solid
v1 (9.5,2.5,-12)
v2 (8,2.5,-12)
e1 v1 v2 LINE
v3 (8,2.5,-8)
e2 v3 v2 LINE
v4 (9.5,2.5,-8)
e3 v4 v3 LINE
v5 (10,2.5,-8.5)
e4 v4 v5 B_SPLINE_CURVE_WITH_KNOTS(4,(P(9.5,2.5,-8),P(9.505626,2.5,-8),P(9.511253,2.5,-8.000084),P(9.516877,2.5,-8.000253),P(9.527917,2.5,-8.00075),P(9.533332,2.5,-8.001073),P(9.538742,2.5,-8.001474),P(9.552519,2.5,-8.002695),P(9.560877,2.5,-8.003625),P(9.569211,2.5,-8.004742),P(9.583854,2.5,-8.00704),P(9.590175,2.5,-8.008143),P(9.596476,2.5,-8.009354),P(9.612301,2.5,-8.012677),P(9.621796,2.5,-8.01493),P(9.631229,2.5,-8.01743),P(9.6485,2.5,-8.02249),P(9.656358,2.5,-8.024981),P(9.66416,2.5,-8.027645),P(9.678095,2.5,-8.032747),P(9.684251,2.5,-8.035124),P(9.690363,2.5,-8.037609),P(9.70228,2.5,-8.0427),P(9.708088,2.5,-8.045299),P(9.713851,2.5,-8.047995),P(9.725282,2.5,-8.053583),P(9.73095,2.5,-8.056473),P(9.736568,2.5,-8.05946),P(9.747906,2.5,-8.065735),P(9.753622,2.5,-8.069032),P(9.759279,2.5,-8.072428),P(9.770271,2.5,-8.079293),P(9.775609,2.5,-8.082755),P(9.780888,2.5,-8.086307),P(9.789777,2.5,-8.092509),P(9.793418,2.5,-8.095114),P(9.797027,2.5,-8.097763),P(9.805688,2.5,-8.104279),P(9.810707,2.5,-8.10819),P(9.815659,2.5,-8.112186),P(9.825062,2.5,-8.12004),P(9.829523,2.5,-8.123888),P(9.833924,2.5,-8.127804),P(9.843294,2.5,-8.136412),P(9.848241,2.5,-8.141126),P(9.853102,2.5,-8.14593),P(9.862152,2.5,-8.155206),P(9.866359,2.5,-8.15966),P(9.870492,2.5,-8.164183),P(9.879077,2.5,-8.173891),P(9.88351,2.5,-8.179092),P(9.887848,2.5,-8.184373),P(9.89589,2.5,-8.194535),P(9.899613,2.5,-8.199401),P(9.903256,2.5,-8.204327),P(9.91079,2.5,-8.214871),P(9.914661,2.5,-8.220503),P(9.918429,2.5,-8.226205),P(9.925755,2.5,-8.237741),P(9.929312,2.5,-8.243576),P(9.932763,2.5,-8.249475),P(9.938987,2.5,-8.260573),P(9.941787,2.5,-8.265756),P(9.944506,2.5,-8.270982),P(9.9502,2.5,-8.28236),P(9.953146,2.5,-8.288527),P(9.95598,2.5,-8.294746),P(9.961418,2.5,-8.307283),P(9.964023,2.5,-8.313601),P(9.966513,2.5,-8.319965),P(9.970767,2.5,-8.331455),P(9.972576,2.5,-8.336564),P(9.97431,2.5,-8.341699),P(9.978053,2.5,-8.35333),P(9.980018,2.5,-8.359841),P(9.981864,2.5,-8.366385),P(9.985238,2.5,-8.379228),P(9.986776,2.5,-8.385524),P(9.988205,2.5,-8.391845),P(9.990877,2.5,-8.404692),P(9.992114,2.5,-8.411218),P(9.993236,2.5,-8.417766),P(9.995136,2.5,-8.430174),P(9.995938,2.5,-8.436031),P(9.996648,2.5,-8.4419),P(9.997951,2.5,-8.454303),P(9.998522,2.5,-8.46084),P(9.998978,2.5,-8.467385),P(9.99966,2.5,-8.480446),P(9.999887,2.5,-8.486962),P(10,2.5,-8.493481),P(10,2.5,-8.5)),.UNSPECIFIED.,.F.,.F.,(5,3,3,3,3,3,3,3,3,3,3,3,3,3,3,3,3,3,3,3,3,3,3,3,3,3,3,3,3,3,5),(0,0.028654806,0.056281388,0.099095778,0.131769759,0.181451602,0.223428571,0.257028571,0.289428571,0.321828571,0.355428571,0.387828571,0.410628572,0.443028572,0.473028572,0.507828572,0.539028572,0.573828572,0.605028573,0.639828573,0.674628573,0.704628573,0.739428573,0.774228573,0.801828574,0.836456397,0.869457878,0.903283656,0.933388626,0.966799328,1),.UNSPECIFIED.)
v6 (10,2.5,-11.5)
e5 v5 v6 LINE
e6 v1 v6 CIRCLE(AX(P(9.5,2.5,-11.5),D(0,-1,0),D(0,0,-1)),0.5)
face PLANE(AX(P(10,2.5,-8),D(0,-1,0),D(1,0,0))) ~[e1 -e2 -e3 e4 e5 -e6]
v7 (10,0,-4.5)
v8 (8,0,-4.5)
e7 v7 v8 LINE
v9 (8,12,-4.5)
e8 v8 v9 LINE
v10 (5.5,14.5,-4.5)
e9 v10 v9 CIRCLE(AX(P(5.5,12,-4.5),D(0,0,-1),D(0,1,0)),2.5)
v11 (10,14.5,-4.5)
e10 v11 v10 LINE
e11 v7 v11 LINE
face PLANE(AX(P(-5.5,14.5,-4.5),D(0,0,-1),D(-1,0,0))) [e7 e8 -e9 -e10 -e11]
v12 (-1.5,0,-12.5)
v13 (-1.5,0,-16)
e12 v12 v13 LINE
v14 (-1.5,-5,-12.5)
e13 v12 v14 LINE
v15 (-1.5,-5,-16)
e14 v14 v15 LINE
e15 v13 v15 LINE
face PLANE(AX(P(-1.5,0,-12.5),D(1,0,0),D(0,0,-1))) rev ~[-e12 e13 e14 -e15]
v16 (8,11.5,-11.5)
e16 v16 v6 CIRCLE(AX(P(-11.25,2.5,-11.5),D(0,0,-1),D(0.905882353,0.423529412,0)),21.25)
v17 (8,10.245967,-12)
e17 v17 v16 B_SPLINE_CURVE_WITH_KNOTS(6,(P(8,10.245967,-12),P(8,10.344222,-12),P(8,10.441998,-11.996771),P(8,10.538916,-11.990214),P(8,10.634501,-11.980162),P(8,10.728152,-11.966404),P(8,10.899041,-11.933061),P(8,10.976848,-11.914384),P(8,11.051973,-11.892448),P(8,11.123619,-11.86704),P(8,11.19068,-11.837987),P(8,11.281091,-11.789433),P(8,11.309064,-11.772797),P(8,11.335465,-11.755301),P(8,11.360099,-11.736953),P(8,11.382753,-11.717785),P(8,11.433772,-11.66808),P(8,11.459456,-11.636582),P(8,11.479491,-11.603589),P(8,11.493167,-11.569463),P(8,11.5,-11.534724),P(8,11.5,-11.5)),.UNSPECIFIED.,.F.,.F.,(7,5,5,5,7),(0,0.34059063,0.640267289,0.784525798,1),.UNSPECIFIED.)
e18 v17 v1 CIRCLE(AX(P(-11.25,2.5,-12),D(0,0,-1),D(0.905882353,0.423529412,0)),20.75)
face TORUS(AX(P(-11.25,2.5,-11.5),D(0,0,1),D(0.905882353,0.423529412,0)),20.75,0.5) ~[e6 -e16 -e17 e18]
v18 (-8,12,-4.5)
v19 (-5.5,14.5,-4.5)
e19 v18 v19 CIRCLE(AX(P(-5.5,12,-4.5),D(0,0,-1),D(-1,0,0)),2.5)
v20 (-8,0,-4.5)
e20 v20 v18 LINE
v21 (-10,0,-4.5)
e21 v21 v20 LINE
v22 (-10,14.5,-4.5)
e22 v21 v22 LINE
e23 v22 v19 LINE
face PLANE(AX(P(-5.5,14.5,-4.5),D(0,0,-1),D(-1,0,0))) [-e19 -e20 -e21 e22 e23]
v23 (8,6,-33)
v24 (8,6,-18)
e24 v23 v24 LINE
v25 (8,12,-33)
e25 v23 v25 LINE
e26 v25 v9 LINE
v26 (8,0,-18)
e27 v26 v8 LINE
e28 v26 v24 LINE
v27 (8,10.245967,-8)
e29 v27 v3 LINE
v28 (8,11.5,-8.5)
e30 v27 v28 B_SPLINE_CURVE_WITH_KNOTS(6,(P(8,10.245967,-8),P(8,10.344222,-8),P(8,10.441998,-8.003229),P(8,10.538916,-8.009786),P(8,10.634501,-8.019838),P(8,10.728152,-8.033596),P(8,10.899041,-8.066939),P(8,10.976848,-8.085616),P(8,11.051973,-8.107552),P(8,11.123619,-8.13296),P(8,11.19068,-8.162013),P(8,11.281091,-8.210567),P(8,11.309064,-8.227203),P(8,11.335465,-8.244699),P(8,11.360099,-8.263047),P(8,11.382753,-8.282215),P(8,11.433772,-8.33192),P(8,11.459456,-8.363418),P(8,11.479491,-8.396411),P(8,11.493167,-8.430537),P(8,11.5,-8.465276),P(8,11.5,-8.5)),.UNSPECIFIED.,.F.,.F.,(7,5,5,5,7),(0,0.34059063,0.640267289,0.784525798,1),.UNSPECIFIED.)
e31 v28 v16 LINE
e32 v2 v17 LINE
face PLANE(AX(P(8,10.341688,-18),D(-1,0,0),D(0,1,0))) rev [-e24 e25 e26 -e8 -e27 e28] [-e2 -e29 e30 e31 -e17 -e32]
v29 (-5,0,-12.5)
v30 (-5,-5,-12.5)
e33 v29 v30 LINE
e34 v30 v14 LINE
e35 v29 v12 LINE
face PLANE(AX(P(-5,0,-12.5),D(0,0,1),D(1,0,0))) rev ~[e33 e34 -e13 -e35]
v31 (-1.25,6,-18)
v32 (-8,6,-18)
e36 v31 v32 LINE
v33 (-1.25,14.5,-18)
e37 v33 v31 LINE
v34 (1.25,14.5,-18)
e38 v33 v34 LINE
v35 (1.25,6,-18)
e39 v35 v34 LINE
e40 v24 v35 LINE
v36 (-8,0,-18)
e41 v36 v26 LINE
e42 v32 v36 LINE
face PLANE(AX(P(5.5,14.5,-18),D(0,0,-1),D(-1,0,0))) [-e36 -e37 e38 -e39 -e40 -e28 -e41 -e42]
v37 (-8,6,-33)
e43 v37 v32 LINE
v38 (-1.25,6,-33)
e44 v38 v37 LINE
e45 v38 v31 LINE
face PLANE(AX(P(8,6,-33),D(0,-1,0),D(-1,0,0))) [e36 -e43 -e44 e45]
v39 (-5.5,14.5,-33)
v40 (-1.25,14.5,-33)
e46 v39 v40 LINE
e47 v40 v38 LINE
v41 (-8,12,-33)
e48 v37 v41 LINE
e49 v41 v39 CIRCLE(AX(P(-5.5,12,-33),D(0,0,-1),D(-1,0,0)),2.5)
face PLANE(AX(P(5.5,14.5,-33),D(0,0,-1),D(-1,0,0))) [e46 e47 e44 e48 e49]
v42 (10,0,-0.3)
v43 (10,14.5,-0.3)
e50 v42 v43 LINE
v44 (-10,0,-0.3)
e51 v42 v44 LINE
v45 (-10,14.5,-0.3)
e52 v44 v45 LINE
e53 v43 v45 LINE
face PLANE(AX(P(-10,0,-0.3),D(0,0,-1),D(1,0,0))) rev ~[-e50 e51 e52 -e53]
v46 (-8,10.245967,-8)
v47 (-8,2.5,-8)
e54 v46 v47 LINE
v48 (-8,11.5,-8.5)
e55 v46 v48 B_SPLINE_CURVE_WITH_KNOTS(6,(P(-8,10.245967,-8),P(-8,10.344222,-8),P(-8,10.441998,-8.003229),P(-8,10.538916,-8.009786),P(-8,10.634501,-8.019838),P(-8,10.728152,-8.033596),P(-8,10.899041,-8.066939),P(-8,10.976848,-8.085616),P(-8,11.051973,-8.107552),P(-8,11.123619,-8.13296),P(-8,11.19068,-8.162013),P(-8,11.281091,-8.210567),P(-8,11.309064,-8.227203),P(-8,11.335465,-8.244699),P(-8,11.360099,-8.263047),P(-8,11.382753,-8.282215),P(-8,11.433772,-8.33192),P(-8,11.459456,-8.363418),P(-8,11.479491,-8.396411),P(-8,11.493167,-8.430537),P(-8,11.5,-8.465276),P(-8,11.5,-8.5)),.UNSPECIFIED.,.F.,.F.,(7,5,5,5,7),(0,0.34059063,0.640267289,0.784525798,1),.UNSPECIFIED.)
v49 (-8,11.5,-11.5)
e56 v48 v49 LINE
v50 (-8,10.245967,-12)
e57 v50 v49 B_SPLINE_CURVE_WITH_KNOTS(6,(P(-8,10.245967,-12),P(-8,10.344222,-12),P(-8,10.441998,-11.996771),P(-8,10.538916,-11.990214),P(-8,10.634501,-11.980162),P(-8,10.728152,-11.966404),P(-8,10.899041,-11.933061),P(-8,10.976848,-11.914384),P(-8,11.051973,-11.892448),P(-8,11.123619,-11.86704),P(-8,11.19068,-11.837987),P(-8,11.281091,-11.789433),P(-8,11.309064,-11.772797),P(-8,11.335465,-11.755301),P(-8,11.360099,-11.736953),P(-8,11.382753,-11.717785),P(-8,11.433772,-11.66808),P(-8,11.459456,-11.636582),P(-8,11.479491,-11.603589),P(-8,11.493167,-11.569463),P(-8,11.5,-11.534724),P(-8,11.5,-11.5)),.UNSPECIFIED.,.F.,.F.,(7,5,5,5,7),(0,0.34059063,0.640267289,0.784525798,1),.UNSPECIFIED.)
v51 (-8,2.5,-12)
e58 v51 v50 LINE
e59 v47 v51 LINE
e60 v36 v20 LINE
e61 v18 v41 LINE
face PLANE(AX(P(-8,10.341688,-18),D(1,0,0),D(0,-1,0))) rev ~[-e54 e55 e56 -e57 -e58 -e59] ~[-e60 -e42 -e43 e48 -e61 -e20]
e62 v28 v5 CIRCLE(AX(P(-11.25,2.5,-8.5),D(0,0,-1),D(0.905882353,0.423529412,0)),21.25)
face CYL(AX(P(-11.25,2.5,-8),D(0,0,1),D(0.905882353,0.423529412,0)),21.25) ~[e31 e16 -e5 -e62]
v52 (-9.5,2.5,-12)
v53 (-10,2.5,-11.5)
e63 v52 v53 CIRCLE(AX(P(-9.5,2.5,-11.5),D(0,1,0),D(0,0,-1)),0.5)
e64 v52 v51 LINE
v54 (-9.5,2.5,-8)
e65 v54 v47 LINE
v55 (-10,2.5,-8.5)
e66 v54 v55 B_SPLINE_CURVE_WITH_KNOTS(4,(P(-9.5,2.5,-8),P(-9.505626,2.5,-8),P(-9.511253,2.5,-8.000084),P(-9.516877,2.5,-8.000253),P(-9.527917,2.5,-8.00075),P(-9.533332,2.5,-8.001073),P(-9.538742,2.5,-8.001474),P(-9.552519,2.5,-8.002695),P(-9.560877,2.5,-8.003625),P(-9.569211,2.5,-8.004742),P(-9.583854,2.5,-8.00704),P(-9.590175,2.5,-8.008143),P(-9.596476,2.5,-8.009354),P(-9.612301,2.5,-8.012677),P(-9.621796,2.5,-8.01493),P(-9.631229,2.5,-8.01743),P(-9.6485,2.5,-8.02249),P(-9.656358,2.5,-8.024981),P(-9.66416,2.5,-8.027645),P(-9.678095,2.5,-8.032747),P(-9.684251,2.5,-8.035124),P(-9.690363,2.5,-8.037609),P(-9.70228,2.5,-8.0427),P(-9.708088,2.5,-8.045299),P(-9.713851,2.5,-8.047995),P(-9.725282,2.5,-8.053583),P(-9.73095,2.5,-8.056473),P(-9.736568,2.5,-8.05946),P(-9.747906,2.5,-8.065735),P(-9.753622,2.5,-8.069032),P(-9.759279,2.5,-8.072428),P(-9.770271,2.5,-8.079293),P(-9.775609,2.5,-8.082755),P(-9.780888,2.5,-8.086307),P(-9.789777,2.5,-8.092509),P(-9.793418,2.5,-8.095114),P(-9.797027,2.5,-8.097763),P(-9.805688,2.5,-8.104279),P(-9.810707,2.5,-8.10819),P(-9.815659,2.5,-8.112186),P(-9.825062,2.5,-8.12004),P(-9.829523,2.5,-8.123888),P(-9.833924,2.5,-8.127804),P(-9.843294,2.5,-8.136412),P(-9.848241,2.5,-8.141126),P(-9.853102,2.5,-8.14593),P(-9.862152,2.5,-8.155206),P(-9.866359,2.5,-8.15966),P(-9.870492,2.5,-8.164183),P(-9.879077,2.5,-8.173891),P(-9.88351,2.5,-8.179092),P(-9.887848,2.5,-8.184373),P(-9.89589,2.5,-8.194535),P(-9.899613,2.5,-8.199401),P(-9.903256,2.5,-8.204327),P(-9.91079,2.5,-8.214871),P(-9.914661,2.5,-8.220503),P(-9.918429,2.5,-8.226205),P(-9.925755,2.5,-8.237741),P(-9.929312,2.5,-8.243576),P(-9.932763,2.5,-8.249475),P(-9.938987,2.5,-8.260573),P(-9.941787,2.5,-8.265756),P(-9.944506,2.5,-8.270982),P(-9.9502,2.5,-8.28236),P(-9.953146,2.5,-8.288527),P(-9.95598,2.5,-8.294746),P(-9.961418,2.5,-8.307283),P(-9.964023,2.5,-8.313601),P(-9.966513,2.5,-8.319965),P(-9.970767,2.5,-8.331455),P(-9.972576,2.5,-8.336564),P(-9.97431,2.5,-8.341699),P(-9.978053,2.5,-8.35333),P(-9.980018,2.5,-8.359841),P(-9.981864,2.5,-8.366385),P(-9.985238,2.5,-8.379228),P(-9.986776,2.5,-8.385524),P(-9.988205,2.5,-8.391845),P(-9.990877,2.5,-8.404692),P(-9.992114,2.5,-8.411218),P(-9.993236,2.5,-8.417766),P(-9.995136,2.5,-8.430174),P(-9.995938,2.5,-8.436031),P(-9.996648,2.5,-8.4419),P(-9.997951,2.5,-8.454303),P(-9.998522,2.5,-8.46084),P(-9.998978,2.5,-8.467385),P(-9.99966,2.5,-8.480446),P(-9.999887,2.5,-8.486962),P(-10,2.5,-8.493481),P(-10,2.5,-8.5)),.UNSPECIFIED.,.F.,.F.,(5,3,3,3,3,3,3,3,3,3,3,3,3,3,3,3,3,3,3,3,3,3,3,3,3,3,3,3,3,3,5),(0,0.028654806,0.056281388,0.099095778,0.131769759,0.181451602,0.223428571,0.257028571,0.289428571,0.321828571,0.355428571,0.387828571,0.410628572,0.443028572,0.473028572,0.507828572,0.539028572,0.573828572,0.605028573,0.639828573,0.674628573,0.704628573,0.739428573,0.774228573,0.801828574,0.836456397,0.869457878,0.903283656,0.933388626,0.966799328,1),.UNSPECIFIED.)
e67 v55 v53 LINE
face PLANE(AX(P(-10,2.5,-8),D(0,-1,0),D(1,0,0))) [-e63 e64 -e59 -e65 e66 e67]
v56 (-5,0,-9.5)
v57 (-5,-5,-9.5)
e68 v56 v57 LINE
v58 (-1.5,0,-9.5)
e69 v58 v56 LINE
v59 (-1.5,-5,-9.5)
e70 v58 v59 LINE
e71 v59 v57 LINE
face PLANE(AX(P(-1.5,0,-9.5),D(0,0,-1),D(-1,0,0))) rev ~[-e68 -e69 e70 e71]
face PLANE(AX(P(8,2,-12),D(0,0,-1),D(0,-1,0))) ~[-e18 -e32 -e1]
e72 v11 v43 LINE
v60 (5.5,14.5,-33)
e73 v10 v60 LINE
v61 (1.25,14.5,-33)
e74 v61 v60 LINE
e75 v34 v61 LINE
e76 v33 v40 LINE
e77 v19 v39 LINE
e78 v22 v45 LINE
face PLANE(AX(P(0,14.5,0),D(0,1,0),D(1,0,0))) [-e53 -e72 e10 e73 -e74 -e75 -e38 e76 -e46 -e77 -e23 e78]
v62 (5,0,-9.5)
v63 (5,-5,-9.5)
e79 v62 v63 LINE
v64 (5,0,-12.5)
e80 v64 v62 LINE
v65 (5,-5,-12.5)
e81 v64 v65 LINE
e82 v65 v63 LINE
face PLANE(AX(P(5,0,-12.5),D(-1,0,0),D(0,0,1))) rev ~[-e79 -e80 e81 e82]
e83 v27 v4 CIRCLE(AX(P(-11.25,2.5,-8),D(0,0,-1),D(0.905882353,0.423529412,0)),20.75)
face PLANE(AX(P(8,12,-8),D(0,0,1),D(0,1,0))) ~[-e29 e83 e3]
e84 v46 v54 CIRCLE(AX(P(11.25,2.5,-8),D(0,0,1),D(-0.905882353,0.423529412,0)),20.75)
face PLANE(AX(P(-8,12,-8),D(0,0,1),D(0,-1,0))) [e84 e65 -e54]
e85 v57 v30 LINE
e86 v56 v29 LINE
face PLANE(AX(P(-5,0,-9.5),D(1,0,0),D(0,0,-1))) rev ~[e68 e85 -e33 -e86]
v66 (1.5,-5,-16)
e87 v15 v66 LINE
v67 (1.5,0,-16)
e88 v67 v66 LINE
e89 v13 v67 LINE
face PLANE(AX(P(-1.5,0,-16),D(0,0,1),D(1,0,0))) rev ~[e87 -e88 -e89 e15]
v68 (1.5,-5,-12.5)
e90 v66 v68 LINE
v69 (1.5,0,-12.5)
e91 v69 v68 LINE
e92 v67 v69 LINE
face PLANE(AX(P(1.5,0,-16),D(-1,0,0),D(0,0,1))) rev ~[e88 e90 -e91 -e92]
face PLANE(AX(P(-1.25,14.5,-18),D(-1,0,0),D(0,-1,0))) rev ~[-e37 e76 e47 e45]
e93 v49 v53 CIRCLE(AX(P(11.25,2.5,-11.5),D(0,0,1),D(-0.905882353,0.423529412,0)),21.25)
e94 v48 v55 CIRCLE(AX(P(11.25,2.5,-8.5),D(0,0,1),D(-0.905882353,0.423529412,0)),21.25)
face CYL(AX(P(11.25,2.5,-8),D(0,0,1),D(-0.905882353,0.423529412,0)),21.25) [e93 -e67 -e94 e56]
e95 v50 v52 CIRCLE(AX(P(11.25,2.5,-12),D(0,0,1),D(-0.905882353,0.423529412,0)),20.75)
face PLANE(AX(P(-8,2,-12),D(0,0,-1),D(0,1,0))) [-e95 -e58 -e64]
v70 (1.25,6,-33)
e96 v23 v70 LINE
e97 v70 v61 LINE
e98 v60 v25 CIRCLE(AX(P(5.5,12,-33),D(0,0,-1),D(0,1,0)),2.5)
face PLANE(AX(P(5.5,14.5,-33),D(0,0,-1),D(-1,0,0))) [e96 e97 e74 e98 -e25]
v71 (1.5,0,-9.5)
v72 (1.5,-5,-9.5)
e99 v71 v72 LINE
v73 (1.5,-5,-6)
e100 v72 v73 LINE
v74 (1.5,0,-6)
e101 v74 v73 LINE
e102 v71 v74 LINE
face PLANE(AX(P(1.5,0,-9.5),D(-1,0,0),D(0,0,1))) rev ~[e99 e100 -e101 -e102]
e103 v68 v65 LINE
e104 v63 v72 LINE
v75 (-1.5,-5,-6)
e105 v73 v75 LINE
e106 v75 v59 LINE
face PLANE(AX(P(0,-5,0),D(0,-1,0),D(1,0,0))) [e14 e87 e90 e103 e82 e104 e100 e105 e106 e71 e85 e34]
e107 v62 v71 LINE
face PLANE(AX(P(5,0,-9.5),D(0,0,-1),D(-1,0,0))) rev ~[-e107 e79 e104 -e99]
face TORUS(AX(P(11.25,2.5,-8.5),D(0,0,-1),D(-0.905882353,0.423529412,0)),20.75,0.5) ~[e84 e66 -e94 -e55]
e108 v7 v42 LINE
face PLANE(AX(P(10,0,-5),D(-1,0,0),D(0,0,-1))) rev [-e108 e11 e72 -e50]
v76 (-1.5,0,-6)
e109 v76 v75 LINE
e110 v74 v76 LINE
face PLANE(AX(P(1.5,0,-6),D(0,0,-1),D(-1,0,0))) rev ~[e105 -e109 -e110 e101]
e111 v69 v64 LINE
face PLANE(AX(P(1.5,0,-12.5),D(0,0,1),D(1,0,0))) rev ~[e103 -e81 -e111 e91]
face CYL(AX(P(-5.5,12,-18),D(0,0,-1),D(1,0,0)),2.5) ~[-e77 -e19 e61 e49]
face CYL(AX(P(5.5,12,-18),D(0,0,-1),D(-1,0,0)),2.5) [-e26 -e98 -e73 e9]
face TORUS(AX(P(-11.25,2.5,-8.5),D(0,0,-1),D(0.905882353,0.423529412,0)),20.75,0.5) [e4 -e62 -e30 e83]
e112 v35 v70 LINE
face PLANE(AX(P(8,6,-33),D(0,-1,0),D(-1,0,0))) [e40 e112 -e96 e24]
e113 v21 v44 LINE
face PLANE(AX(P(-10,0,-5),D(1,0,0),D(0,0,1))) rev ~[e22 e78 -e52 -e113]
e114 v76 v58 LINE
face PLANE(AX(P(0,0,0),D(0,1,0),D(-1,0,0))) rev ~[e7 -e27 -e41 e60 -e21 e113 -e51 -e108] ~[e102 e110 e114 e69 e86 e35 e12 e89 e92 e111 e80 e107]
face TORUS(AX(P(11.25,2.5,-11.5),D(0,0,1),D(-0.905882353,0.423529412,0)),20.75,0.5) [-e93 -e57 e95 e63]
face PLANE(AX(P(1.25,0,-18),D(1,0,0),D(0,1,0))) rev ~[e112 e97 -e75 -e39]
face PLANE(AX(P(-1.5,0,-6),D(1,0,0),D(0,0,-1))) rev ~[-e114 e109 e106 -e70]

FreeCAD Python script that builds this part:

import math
import FreeCAD as App
import Part
import Sketcher
from FreeCAD import Vector
Q = App.Units.Quantity


def edges_at(feature, points):
    """Names of the edges that pass closest to the given points."""
    edges = feature.Shape.Edges
    near = lambda p: min(range(len(edges)), key=lambda i: edges[i].distToShape(Part.Vertex(*p))[0])
    return sorted({f"Edge{near(p) + 1}" for p in points})


def add_polygon(sketch, points):
    """Adds a closed chain of lines whose ends are joined by coincident constraints."""
    first, n = sketch.GeometryCount, len(points)
    for a, b in zip(points, points[1:] + points[:1]):
        sketch.addGeometry(Part.LineSegment(App.Vector(*a, 0), App.Vector(*b, 0)), False)
    for i in range(n):
        sketch.addConstraint(Sketcher.Constraint("Coincident", first + i, 2, first + (i + 1) % n, 1))

doc = App.newDocument("Part")
params = doc.addObject("Spreadsheet::Sheet", "Params")
for row, (alias, value) in enumerate([
    ("sketch1_width", "10 mm"),
    ("sketch1_height", "13 mm"),
    ("sketch1_width2", "1.5 mm"),
    ("pad1_length", "15 mm"),
    ("sketch2_width", "0.5 mm"),
    ("sketch2_radius", "2.5 mm"),
    ("sketch2_height", "12 mm"),
    ("sketch2_width2", "5.5 mm"),
    ("pocket1_length", "13 mm"),
    ("sketch3_width", "10 mm"),
    ("sketch3_height", "4.7 mm"),
    ("pocket2_length", "0.5 mm"),
    ("sketch4_width", "10 mm"),
    ("sketch4_height", "4 mm"),
    ("pad2_length", "2 mm"),
    ("sketch5_height", "0.5 mm"),
    ("sketch5_width", "2 mm"),
    ("sketch5_radius", "21.25 mm"),
    ("pocket3_length", "4 mm"),
    ("fillet_radius", "0.5 mm"),
    ("sketch6_radius", "2.5 mm"),
    ("sketch6_width", "2 mm"),
    ("sketch6_height", "12 mm"),
    ("pocket4_length", "0.5 mm"),
    ("sketch7_height", "14.7 mm"),
    ("sketch8_width", "3 mm"),
    ("pad3_length", "5 mm"),
    ("sketch9_height", "4.7 mm"),
    ("sketch10_radius", "2.5 mm"),
    ("sketch10_height", "12 mm"),
    ("pad4_length", "15 mm"),
    ("sketch11_height", "6 mm"),
    ("sketch11_width", "16 mm"),
    ("pocket7_length", "15 mm"),
], start=1):
    params.set(f"A{row}", alias)
    params.set(f"B{row}", "=" + value)
    params.setAlias(f"B{row}", alias)

body = doc.addObject("PartDesign::Body", "Body")

# Sketch on XZ plane
sketch1 = doc.addObject("Sketcher::SketchObject", "Sketch")
body.addObject(sketch1)
sketch1.AttachmentSupport = (doc.XZ_Plane, [""])
sketch1.MapMode = "FlatFace"
add_polygon(sketch1, [(-10, -5), (-10, -0.3), (0, -0.3), (0, -22.7), (-10, -22.7), (-10, -18), (-8.5, -18), (-8.5, -5)])  # lines 0-7
sketch1.addConstraint([
    Sketcher.Constraint("Vertical", 0),
    Sketcher.Constraint("Horizontal", 1),
    Sketcher.Constraint("Vertical", 2),
    Sketcher.Constraint("Horizontal", 3),
    Sketcher.Constraint("Vertical", 4),
    Sketcher.Constraint("Horizontal", 5),
    Sketcher.Constraint("Vertical", 6),
    Sketcher.Constraint("Horizontal", 7),
    Sketcher.Constraint("PointOnObject", 1, 2, -2),
    Sketcher.Constraint("Vertical", 0, 2, 3, 2),
    Sketcher.Constraint("Equal", 0, 4),
    Sketcher.Constraint("DistanceX", 1, 1, 1, 2, Q("10 mm")),
    Sketcher.Constraint("DistanceY", 6, 1, 6, 2, Q("13 mm")),
    Sketcher.Constraint("DistanceX", 5, 1, 5, 2, Q("1.5 mm")),
    Sketcher.Constraint("DistanceY", 6, 2, -1, 1, Q("5 mm")),
    Sketcher.Constraint("DistanceY", 0, 2, -1, 1, Q("0.3 mm")),
])
sketch1.setExpression("Constraints[19]", "Params.sketch1_width")
sketch1.setExpression("Constraints[20]", "Params.sketch1_height")
sketch1.setExpression("Constraints[21]", "Params.sketch1_width2")
pad1 = doc.addObject("PartDesign::Pad", "Pad")
body.addObject(pad1)
pad1.Profile = sketch1
pad1.setExpression("Length", "Params.pad1_length")
pad1.Reversed = True

# Sketch on XY plane
sketch2 = doc.addObject("Sketcher::SketchObject", "Sketch001")
body.addObject(sketch2)
sketch2.AttachmentSupport = (doc.XY_Plane, [""])
sketch2.MapMode = "FlatFace"
sketch2.AttachmentOffset = App.Placement(Vector(0, 0, -18), App.Rotation())
sketch2.addGeometry([
    Part.LineSegment(Vector(-8.5, 0, 0), Vector(-8, 0, 0)),  # 0
    Part.LineSegment(Vector(-8, 0, 0), Vector(-8, 12, 0)),  # 1
    Part.ArcOfCircle(Part.Circle(Vector(-5.5, 12, 0), Vector(0, 0, 1), 2.5), math.radians(90), math.radians(180)),  # 2
    Part.LineSegment(Vector(-5.5, 14.5, 0), Vector(0, 14.5, 0)),  # 3
    Part.LineSegment(Vector(0, 14.5, 0), Vector(0, 15, 0)),  # 4
    Part.LineSegment(Vector(0, 15, 0), Vector(-8.5, 15, 0)),  # 5
    Part.LineSegment(Vector(-8.5, 15, 0), Vector(-8.5, 0, 0)),  # 6
], False)
sketch2.addConstraint([
    Sketcher.Constraint("Coincident", 0, 2, 1, 1),
    Sketcher.Constraint("Tangent", 1, 2, 2, 2),
    Sketcher.Constraint("Tangent", 2, 1, 3, 1),
    Sketcher.Constraint("Coincident", 3, 2, 4, 1),
    Sketcher.Constraint("Coincident", 4, 2, 5, 1),
    Sketcher.Constraint("Coincident", 5, 2, 6, 1),
    Sketcher.Constraint("Coincident", 6, 2, 0, 1),
    Sketcher.Constraint("Horizontal", 0),
    Sketcher.Constraint("Vertical", 1),
    Sketcher.Constraint("Horizontal", 3),
    Sketcher.Constraint("Vertical", 4),
    Sketcher.Constraint("Horizontal", 5),
    Sketcher.Constraint("Vertical", 6),
    Sketcher.Constraint("PointOnObject", 0, 2, -1),
    Sketcher.Constraint("PointOnObject", 3, 2, -2),
    Sketcher.Constraint("Equal", 0, 4),
    Sketcher.Constraint("DistanceX", 0, 1, 0, 2, Q("0.5 mm")),
    Sketcher.Constraint("Radius", 2, Q("2.5 mm")),
    Sketcher.Constraint("DistanceY", 1, 1, 1, 2, Q("12 mm")),
    Sketcher.Constraint("DistanceX", 3, 1, 3, 2, Q("5.5 mm")),
])
sketch2.setExpression("Constraints[16]", "Params.sketch2_width")
sketch2.setExpression("Constraints[17]", "Params.sketch2_radius")
sketch2.setExpression("Constraints[18]", "Params.sketch2_height")
sketch2.setExpression("Constraints[19]", "Params.sketch2_width2")
pocket1 = doc.addObject("PartDesign::Pocket", "Pocket")
body.addObject(pocket1)
pocket1.Profile = sketch2
pocket1.setExpression("Length", "Params.pocket1_length")
pocket1.Reversed = True

# Sketch on XZ plane
sketch3 = doc.addObject("Sketcher::SketchObject", "Sketch002")
body.addObject(sketch3)
sketch3.AttachmentSupport = (doc.XZ_Plane, [""])
sketch3.MapMode = "FlatFace"
sketch3.AttachmentOffset = App.Placement(Vector(0, 0, -15), App.Rotation())
add_polygon(sketch3, [(0, -0.3), (0, -5), (-10, -5), (-10, -0.3)])  # lines 0-3
sketch3.addConstraint([
    Sketcher.Constraint("Vertical", 0),
    Sketcher.Constraint("Horizontal", 1),
    Sketcher.Constraint("Vertical", 2),
    Sketcher.Constraint("Horizontal", 3),
    Sketcher.Constraint("PointOnObject", 0, 2, -2),
    Sketcher.Constraint("DistanceX", 1, 2, 1, 1, Q("10 mm")),
    Sketcher.Constraint("DistanceY", 0, 2, 0, 1, Q("4.7 mm")),
    Sketcher.Constraint("DistanceY", 0, 2, -1, 1, Q("5 mm")),
])
sketch3.setExpression("Constraints[9]", "Params.sketch3_width")
sketch3.setExpression("Constraints[10]", "Params.sketch3_height")
pocket2 = doc.addObject("PartDesign::Pocket", "Pocket001")
body.addObject(pocket2)
pocket2.Profile = sketch3
pocket2.setExpression("Length", "Params.pocket2_length")
pocket2.Reversed = True

# Sketch on YZ plane
sketch4 = doc.addObject("Sketcher::SketchObject", "Sketch003")
body.addObject(sketch4)
sketch4.AttachmentSupport = (doc.YZ_Plane, [""])
sketch4.MapMode = "FlatFace"
sketch4.AttachmentOffset = App.Placement(Vector(0, 0, -8), App.Rotation())
add_polygon(sketch4, [(12, -8), (12, -12), (2, -12), (2, -8)])  # lines 0-3
sketch4.addConstraint([
    Sketcher.Constraint("Vertical", 0),
    Sketcher.Constraint("Horizontal", 1),
    Sketcher.Constraint("Vertical", 2),
    Sketcher.Constraint("Horizontal", 3),
    Sketcher.Constraint("DistanceX", 1, 2, 1, 1, Q("10 mm")),
    Sketcher.Constraint("DistanceY", 0, 2, 0, 1, Q("4 mm")),
    Sketcher.Constraint("DistanceX", -1, 1, 1, 2, Q("2 mm")),
    Sketcher.Constraint("DistanceY", 0, 2, -1, 1, Q("12 mm")),
])
sketch4.setExpression("Constraints[8]", "Params.sketch4_width")
sketch4.setExpression("Constraints[9]", "Params.sketch4_height")
pad2 = doc.addObject("PartDesign::Pad", "Pad001")
body.addObject(pad2)
pad2.Profile = sketch4
pad2.setExpression("Length", "Params.pad2_length")
pad2.Reversed = True

# Sketch on XY plane
sketch5 = doc.addObject("Sketcher::SketchObject", "Sketch004")
body.addObject(sketch5)
sketch5.AttachmentSupport = (doc.XY_Plane, [""])
sketch5.MapMode = "FlatFace"
sketch5.AttachmentOffset = App.Placement(Vector(0, 0, -8), App.Rotation())
sketch5.addGeometry(Part.LineSegment(Vector(-8, 11.5, 0), Vector(-8, 12, 0)), False)  # 0
sketch5.addGeometry(Part.LineSegment(Vector(-8, 12, 0), Vector(-10, 12, 0)), False)  # 1
sketch5.addGeometry(Part.LineSegment(Vector(-10, 12, 0), Vector(-10, 2.5, 0)), False)  # 2
sketch5.addGeometry(Part.ArcOfCircle(Part.Circle(Vector(11.25, 2.5, 0), Vector(0, 0, 1), 21.25), math.radians(154.942385), math.radians(180)), False)  # 3
add_polygon(sketch5, [(-8, 2), (-8, 2.5), (-10, 2.5), (-10, 2)])  # lines 4-7
sketch5.addConstraint([
    Sketcher.Constraint("Coincident", 0, 2, 1, 1),
    Sketcher.Constraint("Coincident", 1, 2, 2, 1),
    Sketcher.Constraint("Tangent", 2, 2, 3, 2),
    Sketcher.Constraint("Coincident", 3, 1, 0, 1),
    Sketcher.Constraint("Vertical", 0),
    Sketcher.Constraint("Horizontal", 1),
    Sketcher.Constraint("Vertical", 2),
    Sketcher.Constraint("Vertical", 4),
    Sketcher.Constraint("Horizontal", 5),
    Sketcher.Constraint("Vertical", 6),
    Sketcher.Constraint("Horizontal", 7),
    Sketcher.Constraint("Coincident", 5, 2, 2, 2),
    Sketcher.Constraint("Vertical", 3, 1, 4, 2),
    Sketcher.Constraint("Equal", 0, 4),
    Sketcher.Constraint("DistanceY", 0, 1, 0, 2, Q("0.5 mm")),
    Sketcher.Constraint("DistanceX", 1, 2, 1, 1, Q("2 mm")),
    Sketcher.Constraint("Radius", 3, Q("21.25 mm")),
    Sketcher.Constraint("DistanceX", 0, 2, -1, 1, Q("8 mm")),
    Sketcher.Constraint("DistanceY", -1, 1, 0, 2, Q("12 mm")),
])
sketch5.setExpression("Constraints[18]", "Params.sketch5_height")
sketch5.setExpression("Constraints[19]", "Params.sketch5_width")
sketch5.setExpression("Constraints[20]", "Params.sketch5_radius")
pocket3 = doc.addObject("PartDesign::Pocket", "Pocket002")
body.addObject(pocket3)
pocket3.Profile = sketch5
pocket3.setExpression("Length", "Params.pocket3_length")
doc.recompute()

fillet = doc.addObject("PartDesign::Fillet", "Fillet")
body.addObject(fillet)
fillet.Base = (pocket3, edges_at(pocket3, [(-9.494, 7.11, -12), (-9.494, 7.11, -8)]))
fillet.setExpression("Radius", "Params.fillet_radius")
doc.recompute()

mirrored = doc.addObject("PartDesign::Mirrored", "Mirrored")
body.addObject(mirrored)
mirrored.TransformMode = "Transform body"
mirrored.MirrorPlane = (doc.YZ_Plane, [""])
body.Tip = mirrored

# Sketch on XY plane
sketch6 = doc.addObject("Sketcher::SketchObject", "Sketch005")
body.addObject(sketch6)
sketch6.AttachmentSupport = (doc.XY_Plane, [""])
sketch6.MapMode = "FlatFace"
sketch6.AttachmentOffset = App.Placement(Vector(0, 0, -5), App.Rotation())
sketch6.addGeometry([
    Part.LineSegment(Vector(-10, 0, 0), Vector(-10, 14.5, 0)),  # 0
    Part.LineSegment(Vector(-10, 14.5, 0), Vector(-5.5, 14.5, 0)),  # 1
    Part.ArcOfCircle(Part.Circle(Vector(-5.5, 12, 0), Vector(0, 0, 1), 2.5), math.radians(90), math.radians(180)),  # 2
    Part.LineSegment(Vector(-8, 12, 0), Vector(-8, 0, 0)),  # 3
    Part.LineSegment(Vector(-8, 0, 0), Vector(-10, 0, 0)),  # 4
    Part.LineSegment(Vector(5.5, 14.5, 0), Vector(10, 14.5, 0)),  # 5
    Part.LineSegment(Vector(10, 14.5, 0), Vector(10, 0, 0)),  # 6
    Part.LineSegment(Vector(10, 0, 0), Vector(8, 0, 0)),  # 7
    Part.LineSegment(Vector(8, 0, 0), Vector(8, 12, 0)),  # 8
    Part.ArcOfCircle(Part.Circle(Vector(5.5, 12, 0), Vector(0, 0, 1), 2.5), math.radians(0), math.radians(90)),  # 9
], False)
sketch6.addConstraint([
    Sketcher.Constraint("Coincident", 0, 2, 1, 1),
    Sketcher.Constraint("Tangent", 1, 2, 2, 1),
    Sketcher.Constraint("Tangent", 2, 2, 3, 1),
    Sketcher.Constraint("Coincident", 3, 2, 4, 1),
    Sketcher.Constraint("Coincident", 4, 2, 0, 1),
    Sketcher.Constraint("Coincident", 5, 2, 6, 1),
    Sketcher.Constraint("Coincident", 6, 2, 7, 1),
    Sketcher.Constraint("Coincident", 7, 2, 8, 1),
    Sketcher.Constraint("Tangent", 8, 2, 9, 1),
    Sketcher.Constraint("Tangent", 9, 2, 5, 1),
    Sketcher.Constraint("Vertical", 0),
    Sketcher.Constraint("Horizontal", 1),
    Sketcher.Constraint("Vertical", 3),
    Sketcher.Constraint("Horizontal", 4),
    Sketcher.Constraint("Horizontal", 5),
    Sketcher.Constraint("Vertical", 6),
    Sketcher.Constraint("Horizontal", 7),
    Sketcher.Constraint("Vertical", 8),
    Sketcher.Constraint("Equal", 2, 9),
    Sketcher.Constraint("Symmetric", 4, 2, 6, 2, -1, 1),
    Sketcher.Constraint("Symmetric", 2, 3, 9, 3, -2),
    Sketcher.Constraint("PointOnObject", 3, 2, -1),
    Sketcher.Constraint("Radius", 2, Q("2.5 mm")),
    Sketcher.Constraint("DistanceX", 4, 2, 4, 1, Q("2 mm")),
    Sketcher.Constraint("DistanceY", 3, 2, 3, 1, Q("12 mm")),
    Sketcher.Constraint("DistanceX", 0, 2, -1, 1, Q("10 mm")),
])
sketch6.setExpression("Constraints[22]", "Params.sketch6_radius")
sketch6.setExpression("Constraints[23]", "Params.sketch6_width")
sketch6.setExpression("Constraints[24]", "Params.sketch6_height")
pocket4 = doc.addObject("PartDesign::Pocket", "Pocket003")
body.addObject(pocket4)
pocket4.Profile = sketch6
pocket4.setExpression("Length", "Params.pocket4_length")
pocket4.Reversed = True

# Sketch on XZ plane
sketch7 = doc.addObject("Sketcher::SketchObject", "Sketch006")
body.addObject(sketch7)
sketch7.AttachmentSupport = (doc.XZ_Plane, [""])
sketch7.MapMode = "FlatFace"
sketch7.AttachmentOffset = App.Placement(Vector(0, 0, -14.5), App.Rotation())
sketch7.addGeometry([
    Part.ArcOfCircle(Part.Circle(Vector(147.8276, -0.3, 0), Vector(0, 0, 1), 157.827629), math.radians(-173.560865), math.radians(-168.153682)),
    Part.LineSegment(Vector(-6.638534, -32.7, 0), Vector(-10, -32.7, 0)),
    Part.LineSegment(Vector(-10, -32.7, 0), Vector(-10, -18, 0)),
    Part.LineSegment(Vector(-10, -18, 0), Vector(-9.004344, -18, 0)),
], False)
sketch7.addConstraint([
    Sketcher.Constraint("Coincident", 0, 2, 1, 1),
    Sketcher.Constraint("Coincident", 1, 2, 2, 1),
    Sketcher.Constraint("Coincident", 2, 2, 3, 1),
    Sketcher.Constraint("Coincident", 3, 2, 0, 1),
    Sketcher.Constraint("Horizontal", 1),
    Sketcher.Constraint("Vertical", 2),
    Sketcher.Constraint("Horizontal", 3),
    Sketcher.Constraint("DistanceY", 2, 1, 2, 2, Q("14.7 mm")),
    Sketcher.Constraint("DistanceX", 1, 2, -1, 1, Q("10 mm")),
    Sketcher.Constraint("DistanceY", 2, 2, -1, 1, Q("18 mm")),
    Sketcher.Constraint("DistanceY", 0, 3, -1, 1, Q("0.3 mm")),
    Sketcher.Constraint("Radius", 0, Q("157.8276 mm")),
    Sketcher.Constraint("DistanceX", 1, 2, 1, 1, Q("3.3615 mm")),
])
sketch7.setExpression("Constraints[7]", "Params.sketch7_height")
pocket5 = doc.addObject("PartDesign::Pocket", "Pocket004")
body.addObject(pocket5)
pocket5.Profile = sketch7
pocket5.Type = "ThroughAll"
pocket5.Midplane = True
doc.recompute()

mirrored2 = doc.addObject("PartDesign::Mirrored", "Mirrored001")
body.addObject(mirrored2)
mirrored2.Originals = [pocket5]
mirrored2.MirrorPlane = (doc.YZ_Plane, [""])
body.Tip = mirrored2

# Sketch on XZ plane
sketch8 = doc.addObject("Sketcher::SketchObject", "Sketch007")
body.addObject(sketch8)
sketch8.AttachmentSupport = (doc.XZ_Plane, [""])
sketch8.MapMode = "FlatFace"
add_polygon(sketch8, [(1.5, -9.5), (1.5, -6), (-1.5, -6), (-1.5, -9.5), (-5, -9.5), (-5, -12.5), (-1.5, -12.5), (-1.5, -16), (1.5, -16), (1.5, -12.5), (5, -12.5), (5, -9.5)])  # lines 0-11
sketch8.addConstraint([
    Sketcher.Constraint("Vertical", 0),
    Sketcher.Constraint("Horizontal", 1),
    Sketcher.Constraint("Vertical", 2),
    Sketcher.Constraint("Horizontal", 3),
    Sketcher.Constraint("Vertical", 4),
    Sketcher.Constraint("Horizontal", 5),
    Sketcher.Constraint("Vertical", 6),
    Sketcher.Constraint("Horizontal", 7),
    Sketcher.Constraint("Vertical", 8),
    Sketcher.Constraint("Horizontal", 9),
    Sketcher.Constraint("Vertical", 10),
    Sketcher.Constraint("Horizontal", 11),
    Sketcher.Constraint("Symmetric", 5, 2, 8, 2, -2),
    Sketcher.Constraint("Symmetric", 3, 2, 10, 2, -2),
    Sketcher.Constraint("Vertical", 2, 2, 5, 2),
    Sketcher.Constraint("Vertical", 0, 2, 7, 2),
    Sketcher.Constraint("Equal", 11, 0),
    Sketcher.Constraint("Equal", 7, 4),
    Sketcher.Constraint("Equal", 2, 6),
    Sketcher.Constraint("DistanceX", 1, 2, 1, 1, Q("3 mm")),
    Sketcher.Constraint("DistanceY", 0, 2, -1, 1, Q("6 mm")),
    Sketcher.Constraint("DistanceY", 6, 2, 1, 2, Q("10 mm")),
])
sketch8.setExpression("Constraints[31]", "Params.sketch8_width")
pad3 = doc.addObject("PartDesign::Pad", "Pad002")
body.addObject(pad3)
pad3.Profile = sketch8
pad3.setExpression("Length", "Params.pad3_length")

# Sketch on XZ plane
sketch9 = doc.addObject("Sketcher::SketchObject", "Sketch008")
body.addObject(sketch9)
sketch9.AttachmentSupport = (doc.XZ_Plane, [""])
sketch9.MapMode = "FlatFace"
add_polygon(sketch9, [(9.0044, -18), (-9.0044, -18), (-9.0044, -22.7), (9.0044, -22.7)])  # lines 0-3
sketch9.addConstraint([
    Sketcher.Constraint("Horizontal", 0),
    Sketcher.Constraint("Vertical", 1),
    Sketcher.Constraint("Horizontal", 2),
    Sketcher.Constraint("Vertical", 3),
    Sketcher.Constraint("DistanceY", 1, 2, 1, 1, Q("4.7 mm")),
    Sketcher.Constraint("DistanceY", 0, 2, -1, 1, Q("18 mm")),
    Sketcher.Constraint("DistanceX", 0, 2, 0, 1, Q("18.0088 mm")),
    Sketcher.Constraint("DistanceX", 0, 2, -1, 1, Q("9.0044 mm")),
])
sketch9.setExpression("Constraints[8]", "Params.sketch9_height")
pocket6 = doc.addObject("PartDesign::Pocket", "Pocket005")
body.addObject(pocket6)
pocket6.Profile = sketch9
pocket6.Type = "ThroughAll"

# Sketch on XY plane
sketch10 = doc.addObject("Sketcher::SketchObject", "Sketch009")
body.addObject(sketch10)
sketch10.AttachmentSupport = (doc.XY_Plane, [""])
sketch10.MapMode = "FlatFace"
sketch10.AttachmentOffset = App.Placement(Vector(0, 0, -18), App.Rotation())
sketch10.addGeometry([
    Part.LineSegment(Vector(-1.25, 0, 0), Vector(-8, 0, 0)),  # 0
    Part.LineSegment(Vector(-8, 0, 0), Vector(-8, 12, 0)),  # 1
    Part.ArcOfCircle(Part.Circle(Vector(-5.5, 12, 0), Vector(0, 0, 1), 2.5), math.radians(90), math.radians(180)),  # 2
    Part.LineSegment(Vector(-5.5, 14.5, 0), Vector(-1.25, 14.5, 0)),  # 3
    Part.LineSegment(Vector(-1.25, 14.5, 0), Vector(-1.25, 0, 0)),  # 4
    Part.LineSegment(Vector(8, 0, 0), Vector(1.25, 0, 0)),  # 5
    Part.LineSegment(Vector(1.25, 0, 0), Vector(1.25, 14.5, 0)),  # 6
    Part.LineSegment(Vector(1.25, 14.5, 0), Vector(5.5, 14.5, 0)),  # 7
    Part.ArcOfCircle(Part.Circle(Vector(5.5, 12, 0), Vector(0, 0, 1), 2.5), math.radians(0), math.radians(90)),  # 8
    Part.LineSegment(Vector(8, 12, 0), Vector(8, 0, 0)),  # 9
], False)
sketch10.addConstraint([
    Sketcher.Constraint("Coincident", 0, 2, 1, 1),
    Sketcher.Constraint("Tangent", 1, 2, 2, 2),
    Sketcher.Constraint("Tangent", 2, 1, 3, 1),
    Sketcher.Constraint("Coincident", 3, 2, 4, 1),
    Sketcher.Constraint("Coincident", 4, 2, 0, 1),
    Sketcher.Constraint("Coincident", 5, 2, 6, 1),
    Sketcher.Constraint("Coincident", 6, 2, 7, 1),
    Sketcher.Constraint("Tangent", 7, 2, 8, 2),
    Sketcher.Constraint("Tangent", 8, 1, 9, 1),
    Sketcher.Constraint("Coincident", 9, 2, 5, 1),
    Sketcher.Constraint("Horizontal", 0),
    Sketcher.Constraint("Vertical", 1),
    Sketcher.Constraint("Horizontal", 3),
    Sketcher.Constraint("Vertical", 4),
    Sketcher.Constraint("Horizontal", 5),
    Sketcher.Constraint("Vertical", 6),
    Sketcher.Constraint("Horizontal", 7),
    Sketcher.Constraint("Vertical", 9),
    Sketcher.Constraint("Equal", 2, 8),
    Sketcher.Constraint("Symmetric", 4, 2, 5, 2, -1, 1),
    Sketcher.Constraint("Symmetric", 2, 3, 8, 3, -2),
    Sketcher.Constraint("PointOnObject", 0, 2, -1),
    Sketcher.Constraint("Radius", 2, Q("2.5 mm")),
    Sketcher.Constraint("DistanceX", 4, 2, 5, 2, Q("2.5 mm")),
    Sketcher.Constraint("DistanceY", 1, 1, 1, 2, Q("12 mm")),
    Sketcher.Constraint("DistanceX", 0, 2, -1, 1, Q("8 mm")),
])
sketch10.setExpression("Constraints[22]", "Params.sketch10_radius")
sketch10.setExpression("Constraints[24]", "Params.sketch10_height")
pad4 = doc.addObject("PartDesign::Pad", "Pad003")
body.addObject(pad4)
pad4.Profile = sketch10
pad4.setExpression("Length", "Params.pad4_length")
pad4.Reversed = True

# Sketch on XY plane
sketch11 = doc.addObject("Sketcher::SketchObject", "Sketch010")
body.addObject(sketch11)
sketch11.AttachmentSupport = (doc.XY_Plane, [""])
sketch11.MapMode = "FlatFace"
sketch11.AttachmentOffset = App.Placement(Vector(0, 0, -33), App.Rotation())
add_polygon(sketch11, [(8, 0), (-8, 0), (-8, 6), (8, 6)])  # lines 0-3
sketch11.addConstraint([
    Sketcher.Constraint("Horizontal", 0),
    Sketcher.Constraint("Vertical", 1),
    Sketcher.Constraint("Horizontal", 2),
    Sketcher.Constraint("Vertical", 3),
    Sketcher.Constraint("Symmetric", 0, 2, 3, 2, -1, 1),
    Sketcher.Constraint("DistanceY", 1, 1, 1, 2, Q("6 mm")),
    Sketcher.Constraint("DistanceX", 0, 2, 0, 1, Q("16 mm")),
])
sketch11.setExpression("Constraints[9]", "Params.sketch11_height")
sketch11.setExpression("Constraints[10]", "Params.sketch11_width")
pocket7 = doc.addObject("PartDesign::Pocket", "Pocket006")
body.addObject(pocket7)
pocket7.Profile = sketch11
pocket7.setExpression("Length", "Params.pocket7_length")
pocket7.Reversed = True

doc.recompute()
